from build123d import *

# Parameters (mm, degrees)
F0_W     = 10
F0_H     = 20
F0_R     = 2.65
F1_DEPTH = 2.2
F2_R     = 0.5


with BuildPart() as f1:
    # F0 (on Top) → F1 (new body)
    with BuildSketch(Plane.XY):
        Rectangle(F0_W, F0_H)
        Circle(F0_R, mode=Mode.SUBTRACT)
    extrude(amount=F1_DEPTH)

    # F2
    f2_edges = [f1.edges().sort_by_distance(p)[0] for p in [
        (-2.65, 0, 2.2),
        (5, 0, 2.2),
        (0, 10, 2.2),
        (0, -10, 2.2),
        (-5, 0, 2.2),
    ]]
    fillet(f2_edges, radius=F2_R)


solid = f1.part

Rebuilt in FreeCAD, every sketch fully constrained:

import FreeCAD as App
import Part
import Sketcher
from FreeCAD import Vector


def edges_at(feature, points):
    """Names of the edges that pass closest to the given points."""
    edges = feature.Shape.Edges
    near = lambda p: min(range(len(edges)), key=lambda i: edges[i].distToShape(Part.Vertex(*p))[0])
    return sorted({f"Edge{near(p) + 1}" for p in points})

doc = App.newDocument("Part")
body = doc.addObject("PartDesign::Body", "Body")

# Sketch on XY plane
sketch1 = body.newObject("Sketcher::SketchObject", "Sketch")
sketch1.AttachmentSupport = (doc.getObject("XY_Plane"), [""])
sketch1.MapMode = "FlatFace"
sketch1.addGeometry([
    Part.LineSegment(Vector(-5, 10, 0), Vector(-5, -10, 0)),  # 0
    Part.LineSegment(Vector(-5, -10, 0), Vector(5, -10, 0)),  # 1
    Part.LineSegment(Vector(5, -10, 0), Vector(5, 10, 0)),  # 2
    Part.LineSegment(Vector(5, 10, 0), Vector(-5, 10, 0)),  # 3
    Part.Circle(Vector(0, 0, 0), Vector(0, 0, 1), 2.65),  # 4
], False)
sketch1.addConstraint([
    Sketcher.Constraint("Coincident", 0, 2, 1, 1),
    Sketcher.Constraint("Coincident", 1, 2, 2, 1),
    Sketcher.Constraint("Coincident", 2, 2, 3, 1),
    Sketcher.Constraint("Coincident", 3, 2, 0, 1),
    Sketcher.Constraint("Vertical", 0),
    Sketcher.Constraint("Horizontal", 1),
    Sketcher.Constraint("Vertical", 2),
    Sketcher.Constraint("Horizontal", 3),
    Sketcher.Constraint("Coincident", 4, 3, -1, 1),
    Sketcher.Constraint("Symmetric", 0, 2, 2, 2, -1, 1),
    Sketcher.Constraint("Diameter", 4, 5.3),
    Sketcher.Constraint("DistanceX", 1, 1, 1, 2, 10.0),
    Sketcher.Constraint("DistanceY", 0, 2, 0, 1, 20.0),
])
pad1 = body.newObject("PartDesign::Pad", "Pad")
pad1.Profile = sketch1
pad1.Length = 2.2
doc.recompute()

fillet = body.newObject("PartDesign::Fillet", "Fillet")
fillet.Base = (pad1, edges_at(pad1, [
    (-2.65, 0, 2.2),
    (5, 0, 2.2),
    (0, 10, 2.2),
    (0, -10, 2.2),
    (-5, 0, 2.2),
]))
fillet.Radius = 0.5

doc.recompute()
